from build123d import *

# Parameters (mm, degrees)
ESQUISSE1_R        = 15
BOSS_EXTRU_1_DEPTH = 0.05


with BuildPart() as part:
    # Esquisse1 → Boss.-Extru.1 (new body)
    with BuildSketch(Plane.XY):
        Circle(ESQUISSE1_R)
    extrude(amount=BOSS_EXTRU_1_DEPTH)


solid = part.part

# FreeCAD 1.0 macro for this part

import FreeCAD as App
import Part
import Sketcher

doc = App.newDocument("Part")
body = doc.addObject("PartDesign::Body", "Body")

sketch1 = body.newObject("Sketcher::SketchObject", "Sketch")
sketch1.AttachmentSupport = (doc.getObject("XY_Plane"), [""])
sketch1.MapMode = "FlatFace"
sketch1.addGeometry(Part.Circle(App.Vector(0, 0, 0), App.Vector(0, 0, 1), 15), False)
sketch1.addConstraint([
    Sketcher.Constraint("Coincident", 0, 3, -1, 1),
    Sketcher.Constraint("Diameter", 0, 30.0),
])
pad1 = body.newObject("PartDesign::Pad", "Pad")
pad1.Profile = sketch1
pad1.Length = 0.05

doc.recompute()
